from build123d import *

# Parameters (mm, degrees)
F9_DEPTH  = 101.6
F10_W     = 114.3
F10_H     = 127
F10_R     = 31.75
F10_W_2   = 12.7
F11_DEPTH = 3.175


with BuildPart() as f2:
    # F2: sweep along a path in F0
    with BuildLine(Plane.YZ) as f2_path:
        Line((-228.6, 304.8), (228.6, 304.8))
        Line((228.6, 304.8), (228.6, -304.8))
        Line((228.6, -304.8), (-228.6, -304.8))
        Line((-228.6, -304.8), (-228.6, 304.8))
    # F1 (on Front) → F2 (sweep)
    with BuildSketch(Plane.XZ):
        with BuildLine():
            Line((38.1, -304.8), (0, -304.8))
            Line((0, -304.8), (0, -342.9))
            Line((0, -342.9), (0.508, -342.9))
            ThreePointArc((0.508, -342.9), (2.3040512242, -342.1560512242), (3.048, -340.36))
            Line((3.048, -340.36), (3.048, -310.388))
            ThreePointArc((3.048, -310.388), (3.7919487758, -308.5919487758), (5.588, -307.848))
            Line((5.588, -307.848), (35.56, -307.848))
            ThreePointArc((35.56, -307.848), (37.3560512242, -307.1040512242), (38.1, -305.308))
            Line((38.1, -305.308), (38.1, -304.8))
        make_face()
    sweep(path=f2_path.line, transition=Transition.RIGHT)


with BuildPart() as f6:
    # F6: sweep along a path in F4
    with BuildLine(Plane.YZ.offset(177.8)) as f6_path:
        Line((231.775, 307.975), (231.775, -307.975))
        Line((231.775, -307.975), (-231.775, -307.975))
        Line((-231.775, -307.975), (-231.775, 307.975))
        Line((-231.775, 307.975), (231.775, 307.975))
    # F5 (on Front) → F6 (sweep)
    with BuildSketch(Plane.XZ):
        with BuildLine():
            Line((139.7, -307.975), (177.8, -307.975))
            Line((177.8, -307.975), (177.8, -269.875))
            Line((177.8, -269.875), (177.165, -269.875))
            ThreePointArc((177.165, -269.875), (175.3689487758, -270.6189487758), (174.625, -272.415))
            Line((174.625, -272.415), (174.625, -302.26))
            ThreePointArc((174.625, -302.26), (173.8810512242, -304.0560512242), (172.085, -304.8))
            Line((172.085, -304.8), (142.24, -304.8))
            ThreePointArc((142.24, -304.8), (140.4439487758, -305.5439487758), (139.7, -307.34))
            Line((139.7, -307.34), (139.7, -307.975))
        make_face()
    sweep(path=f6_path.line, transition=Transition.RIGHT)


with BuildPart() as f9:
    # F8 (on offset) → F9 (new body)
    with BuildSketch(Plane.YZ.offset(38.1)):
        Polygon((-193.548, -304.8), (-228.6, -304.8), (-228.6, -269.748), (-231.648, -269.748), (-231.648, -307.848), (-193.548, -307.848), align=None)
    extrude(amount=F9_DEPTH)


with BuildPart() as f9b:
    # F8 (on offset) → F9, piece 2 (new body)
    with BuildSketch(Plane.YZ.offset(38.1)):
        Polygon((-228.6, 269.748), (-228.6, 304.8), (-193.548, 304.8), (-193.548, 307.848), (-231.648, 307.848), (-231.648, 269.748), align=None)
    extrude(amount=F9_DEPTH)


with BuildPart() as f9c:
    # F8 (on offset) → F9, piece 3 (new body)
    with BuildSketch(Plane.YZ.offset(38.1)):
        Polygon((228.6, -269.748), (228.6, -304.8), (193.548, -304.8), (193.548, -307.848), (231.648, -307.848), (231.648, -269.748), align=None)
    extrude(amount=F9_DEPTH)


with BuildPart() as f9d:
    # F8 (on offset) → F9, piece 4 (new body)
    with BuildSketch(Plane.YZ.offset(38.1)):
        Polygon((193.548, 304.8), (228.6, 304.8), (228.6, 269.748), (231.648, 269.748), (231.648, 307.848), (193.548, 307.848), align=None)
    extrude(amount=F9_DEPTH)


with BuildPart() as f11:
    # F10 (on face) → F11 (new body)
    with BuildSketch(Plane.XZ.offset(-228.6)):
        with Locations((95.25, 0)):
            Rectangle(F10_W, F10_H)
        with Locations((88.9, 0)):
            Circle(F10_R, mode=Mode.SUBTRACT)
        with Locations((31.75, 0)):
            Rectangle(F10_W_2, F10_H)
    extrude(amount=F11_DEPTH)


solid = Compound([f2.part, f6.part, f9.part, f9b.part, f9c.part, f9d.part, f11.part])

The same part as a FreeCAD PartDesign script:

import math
import FreeCAD as App
import Part
import Sketcher
Q = App.Units.Quantity


def add_polygon(sketch, points):
    """Adds a closed chain of lines whose ends are joined by coincident constraints."""
    first, n = sketch.GeometryCount, len(points)
    for a, b in zip(points, points[1:] + points[:1]):
        sketch.addGeometry(Part.LineSegment(App.Vector(*a, 0), App.Vector(*b, 0)), False)
    for i in range(n):
        sketch.addConstraint(Sketcher.Constraint("Coincident", first + i, 2, first + (i + 1) % n, 1))

doc = App.newDocument("Part")
body = doc.addObject("PartDesign::Body", "Body")

# Sketch on XZ plane
sketch1 = body.newObject("Sketcher::SketchObject", "Sketch")
sketch1.AttachmentSupport = (doc.getObject("XZ_Plane"), [""])
sketch1.MapMode = "FlatFace"
sketch1.addGeometry(Part.LineSegment(App.Vector(38.1, -304.8, 0), App.Vector(0, -304.8, 0)), False)
sketch1.addGeometry(Part.LineSegment(App.Vector(0, -304.8, 0), App.Vector(0, -342.9, 0)), False)
sketch1.addGeometry(Part.LineSegment(App.Vector(0, -342.9, 0), App.Vector(0.508, -342.9, 0)), False)
sketch1.addGeometry(Part.ArcOfCircle(Part.Circle(App.Vector(0.508, -340.36, 0), App.Vector(0, 0, 1), 2.54), math.radians(-90), math.radians(0)), False)
sketch1.addGeometry(Part.LineSegment(App.Vector(3.048, -340.36, 0), App.Vector(3.048, -310.388, 0)), False)
sketch1.addGeometry(Part.ArcOfCircle(Part.Circle(App.Vector(5.588, -310.388, 0), App.Vector(0, 0, 1), 2.54), math.radians(90), math.radians(180)), False)
sketch1.addGeometry(Part.LineSegment(App.Vector(5.588, -307.848, 0), App.Vector(35.56, -307.848, 0)), False)
sketch1.addGeometry(Part.ArcOfCircle(Part.Circle(App.Vector(35.56, -305.308, 0), App.Vector(0, 0, 1), 2.54), math.radians(-90), math.radians(0)), False)
sketch1.addGeometry(Part.LineSegment(App.Vector(38.1, -305.308, 0), App.Vector(38.1, -304.8, 0)), False)
sketch1.addConstraint(Sketcher.Constraint("Coincident", 0, 2, 1, 1))
sketch1.addConstraint(Sketcher.Constraint("Coincident", 1, 2, 2, 1))
sketch1.addConstraint(Sketcher.Constraint("Tangent", 2, 2, 3, 1))
sketch1.addConstraint(Sketcher.Constraint("Tangent", 3, 2, 4, 1))
sketch1.addConstraint(Sketcher.Constraint("Tangent", 4, 2, 5, 2))
sketch1.addConstraint(Sketcher.Constraint("Tangent", 5, 1, 6, 1))
sketch1.addConstraint(Sketcher.Constraint("Tangent", 6, 2, 7, 1))
sketch1.addConstraint(Sketcher.Constraint("Tangent", 7, 2, 8, 1))
sketch1.addConstraint(Sketcher.Constraint("Coincident", 8, 2, 0, 1))
sketch1.addConstraint(Sketcher.Constraint("Horizontal", 0))
sketch1.addConstraint(Sketcher.Constraint("Vertical", 1))
sketch1.addConstraint(Sketcher.Constraint("Horizontal", 2))
sketch1.addConstraint(Sketcher.Constraint("Vertical", 4))
sketch1.addConstraint(Sketcher.Constraint("Horizontal", 6))
sketch1.addConstraint(Sketcher.Constraint("Vertical", 8))
sketch1.addConstraint(Sketcher.Constraint("Equal", 3, 5))
sketch1.addConstraint(Sketcher.Constraint("Equal", 5, 7))
sketch1.addConstraint(Sketcher.Constraint("PointOnObject", 0, 2, -2))
sketch1.addConstraint(Sketcher.Constraint("Equal", 0, 1))
sketch1.addConstraint(Sketcher.Constraint("Equal", 6, 4))
sketch1.addConstraint(Sketcher.Constraint("Radius", 3, Q("0.1 in")))
sketch1.addConstraint(Sketcher.Constraint("DistanceX", 0, 2, 0, 1, Q("1.5 in")))
sketch1.addConstraint(Sketcher.Constraint("DistanceY", 0, 2, -1, 1, Q("12 in")))
sketch1.addConstraint(Sketcher.Constraint("DistanceX", 2, 1, 2, 2, Q("0.02 in")))

# Sketch on YZ plane
sketch2 = body.newObject("Sketcher::SketchObject", "Sketch001")
sketch2.AttachmentSupport = (doc.getObject("YZ_Plane"), [""])
sketch2.MapMode = "FlatFace"
add_polygon(sketch2, [(-228.6, 304.8), (228.6, 304.8), (228.6, -304.8), (-228.6, -304.8)])  # lines 0-3
sketch2.addConstraint(Sketcher.Constraint("Horizontal", 0))
sketch2.addConstraint(Sketcher.Constraint("Vertical", 1))
sketch2.addConstraint(Sketcher.Constraint("Horizontal", 2))
sketch2.addConstraint(Sketcher.Constraint("Vertical", 3))
sketch2.addConstraint(Sketcher.Constraint("Symmetric", 0, 2, 2, 2, -1, 1))
sketch2.addConstraint(Sketcher.Constraint("DistanceX", 0, 1, 0, 2, Q("18 in")))
sketch2.addConstraint(Sketcher.Constraint("DistanceY", 1, 2, 1, 1, Q("24 in")))
doc.recompute()

additivepipe = body.newObject("PartDesign::AdditivePipe", "AdditivePipe")
additivepipe.Profile = sketch1
additivepipe.Spine = (sketch2, ["Edge1", "Edge2", "Edge3", "Edge4"])
additivepipe.Transition = "Right corner"
body2 = doc.addObject("PartDesign::Body", "Body001")

# Sketch on XZ plane
sketch3 = body2.newObject("Sketcher::SketchObject", "Sketch002")
sketch3.AttachmentSupport = (doc.getObject("XZ_Plane001"), [""])
sketch3.MapMode = "FlatFace"
sketch3.addGeometry(Part.LineSegment(App.Vector(139.7, -307.975, 0), App.Vector(177.8, -307.975, 0)), False)
sketch3.addGeometry(Part.LineSegment(App.Vector(177.8, -307.975, 0), App.Vector(177.8, -269.875, 0)), False)
sketch3.addGeometry(Part.LineSegment(App.Vector(177.8, -269.875, 0), App.Vector(177.165, -269.875, 0)), False)
sketch3.addGeometry(Part.ArcOfCircle(Part.Circle(App.Vector(177.165, -272.415, 0), App.Vector(0, 0, 1), 2.54), math.radians(90), math.radians(180)), False)
sketch3.addGeometry(Part.LineSegment(App.Vector(174.625, -272.415, 0), App.Vector(174.625, -302.26, 0)), False)
sketch3.addGeometry(Part.ArcOfCircle(Part.Circle(App.Vector(172.085, -302.26, 0), App.Vector(0, 0, 1), 2.54), math.radians(-90), math.radians(0)), False)
sketch3.addGeometry(Part.LineSegment(App.Vector(172.085, -304.8, 0), App.Vector(142.24, -304.8, 0)), False)
sketch3.addGeometry(Part.ArcOfCircle(Part.Circle(App.Vector(142.24, -307.34, 0), App.Vector(0, 0, 1), 2.54), math.radians(90), math.radians(180)), False)
sketch3.addGeometry(Part.LineSegment(App.Vector(139.7, -307.34, 0), App.Vector(139.7, -307.975, 0)), False)
sketch3.addConstraint(Sketcher.Constraint("Coincident", 0, 2, 1, 1))
sketch3.addConstraint(Sketcher.Constraint("Coincident", 1, 2, 2, 1))
sketch3.addConstraint(Sketcher.Constraint("Tangent", 2, 2, 3, 1))
sketch3.addConstraint(Sketcher.Constraint("Tangent", 3, 2, 4, 1))
sketch3.addConstraint(Sketcher.Constraint("Tangent", 4, 2, 5, 2))
sketch3.addConstraint(Sketcher.Constraint("Tangent", 5, 1, 6, 1))
sketch3.addConstraint(Sketcher.Constraint("Tangent", 6, 2, 7, 1))
sketch3.addConstraint(Sketcher.Constraint("Tangent", 7, 2, 8, 1))
sketch3.addConstraint(Sketcher.Constraint("Coincident", 8, 2, 0, 1))
sketch3.addConstraint(Sketcher.Constraint("Horizontal", 0))
sketch3.addConstraint(Sketcher.Constraint("Vertical", 1))
sketch3.addConstraint(Sketcher.Constraint("Horizontal", 2))
sketch3.addConstraint(Sketcher.Constraint("Vertical", 4))
sketch3.addConstraint(Sketcher.Constraint("Horizontal", 6))
sketch3.addConstraint(Sketcher.Constraint("Vertical", 8))
sketch3.addConstraint(Sketcher.Constraint("Equal", 3, 5))
sketch3.addConstraint(Sketcher.Constraint("Equal", 5, 7))
sketch3.addConstraint(Sketcher.Constraint("Equal", 0, 1))
sketch3.addConstraint(Sketcher.Constraint("Equal", 6, 4))
sketch3.addConstraint(Sketcher.Constraint("Radius", 3, Q("0.1 in")))
sketch3.addConstraint(Sketcher.Constraint("DistanceX", 0, 1, 0, 2, Q("1.5 in")))
sketch3.addConstraint(Sketcher.Constraint("DistanceX", -1, 1, 0, 2, Q("7 in")))
sketch3.addConstraint(Sketcher.Constraint("DistanceY", 5, 1, -1, 1, Q("12 in")))
sketch3.addConstraint(Sketcher.Constraint("DistanceX", 2, 2, 2, 1, Q("0.025 in")))

# Sketch on YZ plane
sketch4 = body2.newObject("Sketcher::SketchObject", "Sketch003")
sketch4.AttachmentSupport = (doc.getObject("YZ_Plane001"), [""])
sketch4.MapMode = "FlatFace"
sketch4.AttachmentOffset = App.Placement(App.Vector(0, 0, 7 * 25.4), App.Rotation())
add_polygon(sketch4, [(231.775, 307.975), (231.775, -307.975), (-231.775, -307.975), (-231.775, 307.975)])  # lines 0-3
sketch4.addConstraint(Sketcher.Constraint("Vertical", 0))
sketch4.addConstraint(Sketcher.Constraint("Horizontal", 1))
sketch4.addConstraint(Sketcher.Constraint("Vertical", 2))
sketch4.addConstraint(Sketcher.Constraint("Horizontal", 3))
sketch4.addConstraint(Sketcher.Constraint("Symmetric", 0, 2, 2, 2, -1, 1))
sketch4.addConstraint(Sketcher.Constraint("DistanceX", 1, 2, 1, 1, Q("18.25 in")))
sketch4.addConstraint(Sketcher.Constraint("DistanceY", 0, 2, 0, 1, Q("24.25 in")))
doc.recompute()

additivepipe2 = body2.newObject("PartDesign::AdditivePipe", "AdditivePipe001")
additivepipe2.Profile = sketch3
additivepipe2.Spine = (sketch4, ["Edge1", "Edge2", "Edge3", "Edge4"])
additivepipe2.Transition = "Right corner"
body3 = doc.addObject("PartDesign::Body", "Body002")

# Sketch on YZ plane
sketch5 = body3.newObject("Sketcher::SketchObject", "Sketch004")
sketch5.AttachmentSupport = (doc.getObject("YZ_Plane002"), [""])
sketch5.MapMode = "FlatFace"
sketch5.AttachmentOffset = App.Placement(App.Vector(0, 0, 1.5 * 25.4), App.Rotation())
add_polygon(sketch5, [(-193.548, -304.8), (-228.6, -304.8), (-228.6, -269.748), (-231.648, -269.748), (-231.648, -307.848), (-193.548, -307.848)])  # lines 0-5
sketch5.addConstraint(Sketcher.Constraint("Horizontal", 0))
sketch5.addConstraint(Sketcher.Constraint("Vertical", 1))
sketch5.addConstraint(Sketcher.Constraint("Horizontal", 2))
sketch5.addConstraint(Sketcher.Constraint("Vertical", 3))
sketch5.addConstraint(Sketcher.Constraint("Horizontal", 4))
sketch5.addConstraint(Sketcher.Constraint("Vertical", 5))
sketch5.addConstraint(Sketcher.Constraint("Equal", 0, 1))
sketch5.addConstraint(Sketcher.Constraint("Equal", 4, 3))
sketch5.addConstraint(Sketcher.Constraint("DistanceX", 4, 1, 4, 2, Q("1.5 in")))
sketch5.addConstraint(Sketcher.Constraint("DistanceX", 0, 2, -1, 1, Q("9 in")))
sketch5.addConstraint(Sketcher.Constraint("DistanceY", 0, 2, -1, 1, Q("12 in")))
sketch5.addConstraint(Sketcher.Constraint("DistanceX", 0, 2, 0, 1, Q("1.38 in")))
pad1 = body3.newObject("PartDesign::Pad", "Pad")
pad1.Profile = sketch5
pad1.Length = Q("4 in")
body4 = doc.addObject("PartDesign::Body", "Body003")

# Sketch on YZ plane
sketch6 = body4.newObject("Sketcher::SketchObject", "Sketch005")
sketch6.AttachmentSupport = (doc.getObject("YZ_Plane003"), [""])
sketch6.MapMode = "FlatFace"
sketch6.AttachmentOffset = App.Placement(App.Vector(0, 0, 1.5 * 25.4), App.Rotation())
add_polygon(sketch6, [(-228.6, 269.748), (-228.6, 304.8), (-193.548, 304.8), (-193.548, 307.848), (-231.648, 307.848), (-231.648, 269.748)])  # lines 0-5
sketch6.addConstraint(Sketcher.Constraint("Vertical", 0))
sketch6.addConstraint(Sketcher.Constraint("Horizontal", 1))
sketch6.addConstraint(Sketcher.Constraint("Vertical", 2))
sketch6.addConstraint(Sketcher.Constraint("Horizontal", 3))
sketch6.addConstraint(Sketcher.Constraint("Vertical", 4))
sketch6.addConstraint(Sketcher.Constraint("Horizontal", 5))
sketch6.addConstraint(Sketcher.Constraint("Equal", 1, 0))
sketch6.addConstraint(Sketcher.Constraint("Equal", 5, 2))
sketch6.addConstraint(Sketcher.Constraint("DistanceX", 3, 2, 3, 1, Q("1.5 in")))
sketch6.addConstraint(Sketcher.Constraint("DistanceX", 0, 2, -1, 1, Q("9 in")))
sketch6.addConstraint(Sketcher.Constraint("DistanceY", -1, 1, 0, 2, Q("12 in")))
sketch6.addConstraint(Sketcher.Constraint("DistanceX", 1, 1, 1, 2, Q("1.38 in")))
pad2 = body4.newObject("PartDesign::Pad", "Pad001")
pad2.Profile = sketch6
pad2.Length = Q("4 in")
body5 = doc.addObject("PartDesign::Body", "Body004")

# Sketch on YZ plane
sketch7 = body5.newObject("Sketcher::SketchObject", "Sketch006")
sketch7.AttachmentSupport = (doc.getObject("YZ_Plane004"), [""])
sketch7.MapMode = "FlatFace"
sketch7.AttachmentOffset = App.Placement(App.Vector(0, 0, 1.5 * 25.4), App.Rotation())
add_polygon(sketch7, [(228.6, -269.748), (228.6, -304.8), (193.548, -304.8), (193.548, -307.848), (231.648, -307.848), (231.648, -269.748)])  # lines 0-5
sketch7.addConstraint(Sketcher.Constraint("Vertical", 0))
sketch7.addConstraint(Sketcher.Constraint("Horizontal", 1))
sketch7.addConstraint(Sketcher.Constraint("Vertical", 2))
sketch7.addConstraint(Sketcher.Constraint("Horizontal", 3))
sketch7.addConstraint(Sketcher.Constraint("Vertical", 4))
sketch7.addConstraint(Sketcher.Constraint("Horizontal", 5))
sketch7.addConstraint(Sketcher.Constraint("Equal", 1, 0))
sketch7.addConstraint(Sketcher.Constraint("Equal", 5, 2))
sketch7.addConstraint(Sketcher.Constraint("DistanceX", 3, 1, 3, 2, Q("1.5 in")))
sketch7.addConstraint(Sketcher.Constraint("DistanceX", -1, 1, 0, 2, Q("9 in")))
sketch7.addConstraint(Sketcher.Constraint("DistanceY", 0, 2, -1, 1, Q("12 in")))
sketch7.addConstraint(Sketcher.Constraint("DistanceX", 1, 2, 1, 1, Q("1.38 in")))
pad3 = body5.newObject("PartDesign::Pad", "Pad002")
pad3.Profile = sketch7
pad3.Length = Q("4 in")
body6 = doc.addObject("PartDesign::Body", "Body005")

# Sketch on YZ plane
sketch8 = body6.newObject("Sketcher::SketchObject", "Sketch007")
sketch8.AttachmentSupport = (doc.getObject("YZ_Plane005"), [""])
sketch8.MapMode = "FlatFace"
sketch8.AttachmentOffset = App.Placement(App.Vector(0, 0, 1.5 * 25.4), App.Rotation())
add_polygon(sketch8, [(193.548, 304.8), (228.6, 304.8), (228.6, 269.748), (231.648, 269.748), (231.648, 307.848), (193.548, 307.848)])  # lines 0-5
sketch8.addConstraint(Sketcher.Constraint("Horizontal", 0))
sketch8.addConstraint(Sketcher.Constraint("Vertical", 1))
sketch8.addConstraint(Sketcher.Constraint("Horizontal", 2))
sketch8.addConstraint(Sketcher.Constraint("Vertical", 3))
sketch8.addConstraint(Sketcher.Constraint("Horizontal", 4))
sketch8.addConstraint(Sketcher.Constraint("Vertical", 5))
sketch8.addConstraint(Sketcher.Constraint("Equal", 0, 1))
sketch8.addConstraint(Sketcher.Constraint("Equal", 4, 3))
sketch8.addConstraint(Sketcher.Constraint("DistanceX", 4, 2, 4, 1, Q("1.5 in")))
sketch8.addConstraint(Sketcher.Constraint("DistanceX", -1, 1, 0, 2, Q("9 in")))
sketch8.addConstraint(Sketcher.Constraint("DistanceY", -1, 1, 0, 2, Q("12 in")))
sketch8.addConstraint(Sketcher.Constraint("DistanceX", 0, 1, 0, 2, Q("1.38 in")))
pad4 = body6.newObject("PartDesign::Pad", "Pad003")
pad4.Profile = sketch8
pad4.Length = Q("4 in")
body7 = doc.addObject("PartDesign::Body", "Body006")

# Sketch on XZ plane
sketch9 = body7.newObject("Sketcher::SketchObject", "Sketch008")
sketch9.AttachmentSupport = (doc.getObject("XZ_Plane006"), [""])
sketch9.MapMode = "FlatFace"
sketch9.AttachmentOffset = App.Placement(App.Vector(0, 0, -9 * 25.4), App.Rotation())
add_polygon(sketch9, [(152.4, -63.5), (152.4, 63.5), (25.4, 63.5), (25.4, -63.5)])  # lines 0-3
sketch9.addGeometry(Part.Circle(App.Vector(88.9, 0, 0), App.Vector(0, 0, 1), 31.75), False)  # 4
sketch9.addConstraint(Sketcher.Constraint("Vertical", 0))
sketch9.addConstraint(Sketcher.Constraint("Horizontal", 1))
sketch9.addConstraint(Sketcher.Constraint("Vertical", 2))
sketch9.addConstraint(Sketcher.Constraint("Horizontal", 3))
sketch9.addConstraint(Sketcher.Constraint("PointOnObject", 4, 3, -1))
sketch9.addConstraint(Sketcher.Constraint("Equal", 3, 0))
sketch9.addConstraint(Sketcher.Constraint("Diameter", 4, Q("2.5 in")))
sketch9.addConstraint(Sketcher.Constraint("DistanceX", 1, 2, 1, 1, Q("5 in")))
sketch9.addConstraint(Sketcher.Constraint("DistanceX", -1, 1, 0, 2, Q("6 in")))
sketch9.addConstraint(Sketcher.Constraint("DistanceX", -1, 1, 4, 3, Q("3.5 in")))
sketch9.addConstraint(Sketcher.Constraint("DistanceY", -1, 1, 0, 2, Q("2.5 in")))
pad5 = body7.newObject("PartDesign::Pad", "Pad004")
pad5.Profile = sketch9
pad5.Length = Q("0.125 in")

doc.recompute()
